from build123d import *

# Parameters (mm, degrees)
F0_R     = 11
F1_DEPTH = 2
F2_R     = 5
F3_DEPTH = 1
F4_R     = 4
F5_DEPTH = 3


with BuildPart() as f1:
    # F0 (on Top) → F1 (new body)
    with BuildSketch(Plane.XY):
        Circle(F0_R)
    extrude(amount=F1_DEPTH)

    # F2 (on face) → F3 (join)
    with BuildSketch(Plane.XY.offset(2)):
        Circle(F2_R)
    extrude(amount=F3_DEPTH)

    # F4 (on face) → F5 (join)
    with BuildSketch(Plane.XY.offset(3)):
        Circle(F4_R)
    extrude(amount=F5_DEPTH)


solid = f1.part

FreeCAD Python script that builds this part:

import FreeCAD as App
import Part
import Sketcher
from FreeCAD import Vector

doc = App.newDocument("Part")
body = doc.addObject("PartDesign::Body", "Body")

# Sketch on XY plane
sketch1 = doc.addObject("Sketcher::SketchObject", "Sketch")
body.addObject(sketch1)
sketch1.AttachmentSupport = (doc.XY_Plane, [""])
sketch1.MapMode = "FlatFace"
sketch1.addGeometry(Part.Circle(Vector(0, 0, 0), Vector(0, 0, 1), 11), False)
sketch1.addConstraint([
    Sketcher.Constraint("Coincident", 0, 3, -1, 1),
    Sketcher.Constraint("Diameter", 0, 22.0),
])
pad1 = doc.addObject("PartDesign::Pad", "Pad")
body.addObject(pad1)
pad1.Profile = sketch1
pad1.Length = 2

# Sketch on XY plane
sketch2 = doc.addObject("Sketcher::SketchObject", "Sketch001")
body.addObject(sketch2)
sketch2.AttachmentSupport = (doc.XY_Plane, [""])
sketch2.MapMode = "FlatFace"
sketch2.AttachmentOffset = App.Placement(Vector(0, 0, 2), App.Rotation())
sketch2.addGeometry(Part.Circle(Vector(0, 0, 0), Vector(0, 0, 1), 5), False)
sketch2.addConstraint([
    Sketcher.Constraint("Coincident", 0, 3, -1, 1),
    Sketcher.Constraint("Diameter", 0, 10.0),
])
pad2 = doc.addObject("PartDesign::Pad", "Pad001")
body.addObject(pad2)
pad2.Profile = sketch2
pad2.Length = 1

# Sketch on XY plane
sketch3 = doc.addObject("Sketcher::SketchObject", "Sketch002")
body.addObject(sketch3)
sketch3.AttachmentSupport = (doc.XY_Plane, [""])
sketch3.MapMode = "FlatFace"
sketch3.AttachmentOffset = App.Placement(Vector(0, 0, 3), App.Rotation())
sketch3.addGeometry(Part.Circle(Vector(0, 0, 0), Vector(0, 0, 1), 4), False)
sketch3.addConstraint([
    Sketcher.Constraint("Coincident", 0, 3, -1, 1),
    Sketcher.Constraint("Diameter", 0, 8.0),
])
pad3 = doc.addObject("PartDesign::Pad", "Pad002")
body.addObject(pad3)
pad3.Profile = sketch3
pad3.Length = 3

doc.recompute()
